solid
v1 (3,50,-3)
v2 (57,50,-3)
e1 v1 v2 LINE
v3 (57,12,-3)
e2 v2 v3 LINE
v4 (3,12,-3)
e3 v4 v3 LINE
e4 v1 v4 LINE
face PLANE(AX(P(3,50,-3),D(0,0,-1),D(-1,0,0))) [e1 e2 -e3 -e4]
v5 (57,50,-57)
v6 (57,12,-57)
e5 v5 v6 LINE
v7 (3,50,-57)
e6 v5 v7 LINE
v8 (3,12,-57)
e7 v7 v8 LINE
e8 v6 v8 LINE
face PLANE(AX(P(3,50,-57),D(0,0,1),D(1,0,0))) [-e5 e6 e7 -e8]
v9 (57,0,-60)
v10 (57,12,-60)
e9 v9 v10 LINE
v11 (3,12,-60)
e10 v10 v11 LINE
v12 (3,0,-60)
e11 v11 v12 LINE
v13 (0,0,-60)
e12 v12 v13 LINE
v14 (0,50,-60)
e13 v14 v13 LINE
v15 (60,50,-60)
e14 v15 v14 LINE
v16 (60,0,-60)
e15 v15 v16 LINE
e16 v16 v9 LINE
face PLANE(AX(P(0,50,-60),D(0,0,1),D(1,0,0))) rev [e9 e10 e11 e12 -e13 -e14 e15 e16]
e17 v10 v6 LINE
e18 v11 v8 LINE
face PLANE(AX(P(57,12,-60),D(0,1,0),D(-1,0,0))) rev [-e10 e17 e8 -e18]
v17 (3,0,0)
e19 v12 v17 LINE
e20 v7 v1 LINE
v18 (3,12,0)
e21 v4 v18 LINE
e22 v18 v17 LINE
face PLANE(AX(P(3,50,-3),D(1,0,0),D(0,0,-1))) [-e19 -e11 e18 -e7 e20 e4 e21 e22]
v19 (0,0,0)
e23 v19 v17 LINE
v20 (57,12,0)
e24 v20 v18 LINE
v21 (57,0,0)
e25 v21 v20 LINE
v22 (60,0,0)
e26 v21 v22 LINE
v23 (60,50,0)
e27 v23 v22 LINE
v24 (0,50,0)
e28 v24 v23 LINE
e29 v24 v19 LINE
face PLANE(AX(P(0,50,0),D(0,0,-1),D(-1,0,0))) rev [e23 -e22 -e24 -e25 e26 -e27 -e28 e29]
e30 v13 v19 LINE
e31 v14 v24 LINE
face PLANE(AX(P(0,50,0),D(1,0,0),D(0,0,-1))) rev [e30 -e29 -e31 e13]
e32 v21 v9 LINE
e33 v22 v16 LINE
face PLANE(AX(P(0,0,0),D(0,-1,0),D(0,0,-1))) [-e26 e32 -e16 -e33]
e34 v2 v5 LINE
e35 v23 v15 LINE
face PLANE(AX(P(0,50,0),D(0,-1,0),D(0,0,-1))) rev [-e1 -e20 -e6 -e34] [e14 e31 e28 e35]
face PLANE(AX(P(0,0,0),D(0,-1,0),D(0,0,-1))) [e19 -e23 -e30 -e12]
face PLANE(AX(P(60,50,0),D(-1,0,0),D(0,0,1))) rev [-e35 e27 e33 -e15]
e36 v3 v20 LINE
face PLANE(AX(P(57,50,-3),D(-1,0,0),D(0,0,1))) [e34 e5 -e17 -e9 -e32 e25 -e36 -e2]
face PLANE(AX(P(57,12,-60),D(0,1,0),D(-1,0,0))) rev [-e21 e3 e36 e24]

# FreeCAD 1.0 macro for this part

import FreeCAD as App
import Part
import Sketcher

V = App.Vector
Q = App.Units.Quantity


def add_polygon(sketch, points):
    """Adds a closed chain of lines whose ends are joined by coincident constraints."""
    first, n = sketch.GeometryCount, len(points)
    for a, b in zip(points, points[1:] + points[:1]):
        sketch.addGeometry(Part.LineSegment(App.Vector(*a, 0), App.Vector(*b, 0)), False)
    for i in range(n):
        sketch.addConstraint(Sketcher.Constraint("Coincident", first + i, 2, first + (i + 1) % n, 1))

doc = App.newDocument("Part")
body = doc.addObject("PartDesign::Body", "Body")

# Sketch on XZ plane
sketch1 = doc.addObject("Sketcher::SketchObject", "Sketch")
body.addObject(sketch1)
sketch1.AttachmentSupport = (doc.XZ_Plane, [""])
sketch1.MapMode = "FlatFace"
add_polygon(sketch1, [(0, -60), (0, 0), (60, 0), (60, -60)])  # lines 0-3
sketch1.addConstraint(Sketcher.Constraint("Vertical", 0))
sketch1.addConstraint(Sketcher.Constraint("Horizontal", 1))
sketch1.addConstraint(Sketcher.Constraint("Vertical", 2))
sketch1.addConstraint(Sketcher.Constraint("Horizontal", 3))
sketch1.addConstraint(Sketcher.Constraint("Coincident", 0, 2, -1, 1))
sketch1.addConstraint(Sketcher.Constraint("Equal", 3, 0))
sketch1.addConstraint(Sketcher.Constraint("DistanceX", 1, 1, 1, 2, Q("60 mm")))
pad1 = doc.addObject("PartDesign::Pad", "Pad")
body.addObject(pad1)
pad1.Profile = sketch1
pad1.Length = 50
pad1.Reversed = True

# Sketch on XZ plane
sketch2 = doc.addObject("Sketcher::SketchObject", "Sketch001")
body.addObject(sketch2)
sketch2.AttachmentSupport = (doc.XZ_Plane, [""])
sketch2.MapMode = "FlatFace"
add_polygon(sketch2, [(3, -57), (3, -3), (57, -3), (57, -57)])  # lines 0-3
sketch2.addConstraint(Sketcher.Constraint("Vertical", 0))
sketch2.addConstraint(Sketcher.Constraint("Horizontal", 1))
sketch2.addConstraint(Sketcher.Constraint("Vertical", 2))
sketch2.addConstraint(Sketcher.Constraint("Horizontal", 3))
sketch2.addConstraint(Sketcher.Constraint("Equal", 3, 0))
sketch2.addConstraint(Sketcher.Constraint("DistanceX", 1, 1, 1, 2, Q("54 mm")))
sketch2.addConstraint(Sketcher.Constraint("DistanceX", -1, 1, 0, 2, Q("3 mm")))
sketch2.addConstraint(Sketcher.Constraint("DistanceY", 0, 2, -1, 1, Q("3 mm")))
pocket1 = doc.addObject("PartDesign::Pocket", "Pocket")
body.addObject(pocket1)
pocket1.Profile = sketch2
pocket1.Type = "ThroughAll"

# Sketch on XY plane
sketch3 = doc.addObject("Sketcher::SketchObject", "Sketch002")
body.addObject(sketch3)
sketch3.AttachmentSupport = (doc.XY_Plane, [""])
sketch3.MapMode = "FlatFace"
add_polygon(sketch3, [(3, 12), (3, 0), (57, 0), (57, 12)])  # lines 0-3
sketch3.addConstraint(Sketcher.Constraint("Vertical", 0))
sketch3.addConstraint(Sketcher.Constraint("Horizontal", 1))
sketch3.addConstraint(Sketcher.Constraint("Vertical", 2))
sketch3.addConstraint(Sketcher.Constraint("Horizontal", 3))
sketch3.addConstraint(Sketcher.Constraint("PointOnObject", 0, 2, -1))
sketch3.addConstraint(Sketcher.Constraint("DistanceX", 1, 1, 1, 2, Q("54 mm")))
sketch3.addConstraint(Sketcher.Constraint("DistanceY", 0, 2, 0, 1, Q("12 mm")))
sketch3.addConstraint(Sketcher.Constraint("DistanceX", -1, 1, 0, 2, Q("3 mm")))
pocket2 = doc.addObject("PartDesign::Pocket", "Pocket001")
body.addObject(pocket2)
pocket2.Profile = sketch3
pocket2.Type = "ThroughAll"

doc.recompute()
